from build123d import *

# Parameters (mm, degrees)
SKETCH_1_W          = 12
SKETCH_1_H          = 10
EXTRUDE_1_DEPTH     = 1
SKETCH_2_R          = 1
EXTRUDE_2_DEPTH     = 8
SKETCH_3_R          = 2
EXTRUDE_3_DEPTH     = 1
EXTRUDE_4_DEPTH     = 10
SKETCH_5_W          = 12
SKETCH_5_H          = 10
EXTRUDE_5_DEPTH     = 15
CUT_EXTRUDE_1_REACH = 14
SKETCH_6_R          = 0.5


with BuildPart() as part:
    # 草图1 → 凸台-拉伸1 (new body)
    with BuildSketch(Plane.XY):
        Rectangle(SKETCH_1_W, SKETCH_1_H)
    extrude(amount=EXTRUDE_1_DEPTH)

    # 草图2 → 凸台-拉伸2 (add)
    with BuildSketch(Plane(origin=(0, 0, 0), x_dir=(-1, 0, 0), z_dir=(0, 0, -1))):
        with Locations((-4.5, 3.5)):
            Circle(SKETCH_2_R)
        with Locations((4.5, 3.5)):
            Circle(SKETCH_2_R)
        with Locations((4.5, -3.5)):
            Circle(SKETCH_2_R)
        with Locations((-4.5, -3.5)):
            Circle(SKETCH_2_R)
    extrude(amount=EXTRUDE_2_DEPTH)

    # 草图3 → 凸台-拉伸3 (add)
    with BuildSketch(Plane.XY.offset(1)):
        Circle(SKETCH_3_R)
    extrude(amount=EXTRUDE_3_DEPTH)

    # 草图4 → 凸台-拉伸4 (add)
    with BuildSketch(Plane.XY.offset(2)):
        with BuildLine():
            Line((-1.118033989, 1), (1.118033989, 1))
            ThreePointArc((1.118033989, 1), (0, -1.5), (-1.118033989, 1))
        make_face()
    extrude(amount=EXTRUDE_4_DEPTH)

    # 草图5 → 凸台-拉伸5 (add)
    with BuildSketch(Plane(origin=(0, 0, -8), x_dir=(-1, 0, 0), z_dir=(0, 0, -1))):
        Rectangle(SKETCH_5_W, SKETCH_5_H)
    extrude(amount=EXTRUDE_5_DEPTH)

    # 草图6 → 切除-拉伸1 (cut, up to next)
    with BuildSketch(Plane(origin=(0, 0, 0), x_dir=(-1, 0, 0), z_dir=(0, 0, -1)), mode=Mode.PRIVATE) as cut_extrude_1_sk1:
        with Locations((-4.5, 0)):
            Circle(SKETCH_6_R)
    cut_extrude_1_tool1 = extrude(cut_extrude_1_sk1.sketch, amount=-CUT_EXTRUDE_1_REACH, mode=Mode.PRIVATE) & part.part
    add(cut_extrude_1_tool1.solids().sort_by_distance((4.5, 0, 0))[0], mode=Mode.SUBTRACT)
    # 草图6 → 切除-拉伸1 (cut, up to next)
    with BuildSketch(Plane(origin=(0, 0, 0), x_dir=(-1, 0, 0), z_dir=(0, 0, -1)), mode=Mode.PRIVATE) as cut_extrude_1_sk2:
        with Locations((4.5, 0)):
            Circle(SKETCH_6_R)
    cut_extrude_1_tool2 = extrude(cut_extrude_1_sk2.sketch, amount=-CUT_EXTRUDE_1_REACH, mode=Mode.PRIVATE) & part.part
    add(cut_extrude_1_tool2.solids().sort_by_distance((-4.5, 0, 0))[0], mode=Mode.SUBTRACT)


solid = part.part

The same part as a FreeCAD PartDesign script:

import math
import FreeCAD as App
import Part
import Sketcher


def add_polygon(sketch, points):
    """Adds a closed chain of lines whose ends are joined by coincident constraints."""
    first, n = sketch.GeometryCount, len(points)
    for a, b in zip(points, points[1:] + points[:1]):
        sketch.addGeometry(Part.LineSegment(App.Vector(*a, 0), App.Vector(*b, 0)), False)
    for i in range(n):
        sketch.addConstraint(Sketcher.Constraint("Coincident", first + i, 2, first + (i + 1) % n, 1))

doc = App.newDocument("Part")
params = doc.addObject("Spreadsheet::Sheet", "Params")
for row, (alias, value) in enumerate([
    ("sketch1_width", "12 mm"),
    ("sketch1_height", "10 mm"),
    ("pad1_length", "1 mm"),
    ("sketch2_diameter", "2 mm"),
    ("pad2_length", "8 mm"),
    ("sketch3_diameter", "4 mm"),
    ("pad3_length", "1 mm"),
    ("sketch4_radius", "1.5 mm"),
    ("pad4_length", "10 mm"),
    ("sketch5_width", "12 mm"),
    ("sketch5_height", "10 mm"),
    ("pad5_length", "15 mm"),
    ("sketch6_diameter", "1 mm"),
    ("sketch7_diameter", "1 mm"),
], start=1):
    params.set(f"A{row}", alias)
    params.set(f"B{row}", "=" + value)
    params.setAlias(f"B{row}", alias)

body = doc.addObject("PartDesign::Body", "Body")

# Sketch on XY plane
sketch1 = body.newObject("Sketcher::SketchObject", "Sketch")
sketch1.AttachmentSupport = (doc.getObject("XY_Plane"), [""])
sketch1.MapMode = "FlatFace"
add_polygon(sketch1, [(-6, 5), (-6, -5), (6, -5), (6, 5)])  # lines 0-3
sketch1.addConstraint([
    Sketcher.Constraint("Vertical", 0),
    Sketcher.Constraint("Horizontal", 1),
    Sketcher.Constraint("Vertical", 2),
    Sketcher.Constraint("Horizontal", 3),
    Sketcher.Constraint("Symmetric", 0, 2, 2, 2, -1, 1),
    Sketcher.Constraint("DistanceX", 1, 1, 1, 2, 12.0),
    Sketcher.Constraint("DistanceY", 0, 2, 0, 1, 10.0),
])
sketch1.setExpression("Constraints[9]", "Params.sketch1_width")
sketch1.setExpression("Constraints[10]", "Params.sketch1_height")
pad1 = body.newObject("PartDesign::Pad", "Pad")
pad1.Profile = sketch1
pad1.setExpression("Length", "Params.pad1_length")

# Sketch on XY plane
sketch2 = body.newObject("Sketcher::SketchObject", "Sketch001")
sketch2.AttachmentSupport = (doc.getObject("XY_Plane"), [""])
sketch2.MapMode = "FlatFace"
sketch2.addGeometry([
    Part.Circle(App.Vector(4.5, 3.5, 0), App.Vector(0, 0, 1), 1),
    Part.Circle(App.Vector(-4.5, 3.5, 0), App.Vector(0, 0, 1), 1),
    Part.Circle(App.Vector(-4.5, -3.5, 0), App.Vector(0, 0, 1), 1),
    Part.Circle(App.Vector(4.5, -3.5, 0), App.Vector(0, 0, 1), 1),
], False)
sketch2.addConstraint([
    Sketcher.Constraint("Equal", 0, 1),
    Sketcher.Constraint("Equal", 1, 2),
    Sketcher.Constraint("Equal", 2, 3),
    Sketcher.Constraint("Symmetric", 0, 3, 2, 3, -1, 1),
    Sketcher.Constraint("Symmetric", 1, 3, 3, 3, -1, 1),
    Sketcher.Constraint("Symmetric", 0, 3, 1, 3, -2),
    Sketcher.Constraint("Diameter", 0, 2.0),
    Sketcher.Constraint("DistanceX", 1, 3, 0, 3, 9.0),
    Sketcher.Constraint("DistanceY", 2, 3, 1, 3, 7.0),
])
sketch2.setExpression("Constraints[6]", "Params.sketch2_diameter")
pad2 = body.newObject("PartDesign::Pad", "Pad001")
pad2.Profile = sketch2
pad2.setExpression("Length", "Params.pad2_length")
pad2.Reversed = True

# Sketch on XY plane
sketch3 = body.newObject("Sketcher::SketchObject", "Sketch002")
sketch3.AttachmentSupport = (doc.getObject("XY_Plane"), [""])
sketch3.MapMode = "FlatFace"
sketch3.AttachmentOffset = App.Placement(App.Vector(0, 0, 1), App.Rotation())
sketch3.addGeometry(Part.Circle(App.Vector(0, 0, 0), App.Vector(0, 0, 1), 2), False)
sketch3.addConstraint([
    Sketcher.Constraint("Coincident", 0, 3, -1, 1),
    Sketcher.Constraint("Diameter", 0, 4.0),
])
sketch3.setExpression("Constraints[1]", "Params.sketch3_diameter")
pad3 = body.newObject("PartDesign::Pad", "Pad002")
pad3.Profile = sketch3
pad3.setExpression("Length", "Params.pad3_length")

# Sketch on XY plane
sketch4 = body.newObject("Sketcher::SketchObject", "Sketch003")
sketch4.AttachmentSupport = (doc.getObject("XY_Plane"), [""])
sketch4.MapMode = "FlatFace"
sketch4.AttachmentOffset = App.Placement(App.Vector(0, 0, 2), App.Rotation())
sketch4.addGeometry([
    Part.LineSegment(App.Vector(1.1, 1, 0), App.Vector(-1.1, 1, 0)),
    Part.ArcOfCircle(Part.Circle(App.Vector(0, 0, 0), App.Vector(0, 0, 1), 1.5), math.radians(138), math.radians(402)),
], False)
sketch4.addConstraint([
    Sketcher.Constraint("Coincident", 0, 1, 1, 2),
    Sketcher.Constraint("Coincident", 1, 1, 0, 2),
    Sketcher.Constraint("Horizontal", 0),
    Sketcher.Constraint("Coincident", 1, 3, -1, 1),
    Sketcher.Constraint("Radius", 1, 1.5),
    Sketcher.Constraint("DistanceY", -1, 1, 0, 1, 1.0),
])
sketch4.setExpression("Constraints[4]", "Params.sketch4_radius")
pad4 = body.newObject("PartDesign::Pad", "Pad003")
pad4.Profile = sketch4
pad4.setExpression("Length", "Params.pad4_length")

# Sketch on XY plane
sketch5 = body.newObject("Sketcher::SketchObject", "Sketch004")
sketch5.AttachmentSupport = (doc.getObject("XY_Plane"), [""])
sketch5.MapMode = "FlatFace"
sketch5.AttachmentOffset = App.Placement(App.Vector(0, 0, -8), App.Rotation())
add_polygon(sketch5, [(6, 5), (6, -5), (-6, -5), (-6, 5)])  # lines 0-3
sketch5.addConstraint([
    Sketcher.Constraint("Vertical", 0),
    Sketcher.Constraint("Horizontal", 1),
    Sketcher.Constraint("Vertical", 2),
    Sketcher.Constraint("Horizontal", 3),
    Sketcher.Constraint("Symmetric", 0, 2, 2, 2, -1, 1),
    Sketcher.Constraint("DistanceX", 1, 2, 1, 1, 12.0),
    Sketcher.Constraint("DistanceY", 0, 2, 0, 1, 10.0),
])
sketch5.setExpression("Constraints[9]", "Params.sketch5_width")
sketch5.setExpression("Constraints[10]", "Params.sketch5_height")
pad5 = body.newObject("PartDesign::Pad", "Pad004")
pad5.Profile = sketch5
pad5.setExpression("Length", "Params.pad5_length")
pad5.Reversed = True

# Sketch on XY plane
sketch6 = body.newObject("Sketcher::SketchObject", "Sketch005")
sketch6.AttachmentSupport = (doc.getObject("XY_Plane"), [""])
sketch6.MapMode = "FlatFace"
sketch6.addGeometry(Part.Circle(App.Vector(4.5, 0, 0), App.Vector(0, 0, 1), 0.5), False)
sketch6.addConstraint([
    Sketcher.Constraint("PointOnObject", 0, 3, -1),
    Sketcher.Constraint("Diameter", 0, 1.0),
    Sketcher.Constraint("DistanceX", -1, 1, 0, 3, 4.5),
])
sketch6.setExpression("Constraints[1]", "Params.sketch6_diameter")
pocket1 = body.newObject("PartDesign::Pocket", "Pocket")
pocket1.Profile = sketch6
pocket1.Type = "UpToFirst"
pocket1.Reversed = True

# Sketch on XY plane
sketch7 = body.newObject("Sketcher::SketchObject", "Sketch006")
sketch7.AttachmentSupport = (doc.getObject("XY_Plane"), [""])
sketch7.MapMode = "FlatFace"
sketch7.addGeometry(Part.Circle(App.Vector(-4.5, 0, 0), App.Vector(0, 0, 1), 0.5), False)
sketch7.addConstraint([
    Sketcher.Constraint("PointOnObject", 0, 3, -1),
    Sketcher.Constraint("Diameter", 0, 1.0),
    Sketcher.Constraint("DistanceX", 0, 3, -1, 1, 4.5),
])
sketch7.setExpression("Constraints[1]", "Params.sketch7_diameter")
pocket2 = body.newObject("PartDesign::Pocket", "Pocket001")
pocket2.Profile = sketch7
pocket2.Type = "UpToFirst"
pocket2.Reversed = True

doc.recompute()
